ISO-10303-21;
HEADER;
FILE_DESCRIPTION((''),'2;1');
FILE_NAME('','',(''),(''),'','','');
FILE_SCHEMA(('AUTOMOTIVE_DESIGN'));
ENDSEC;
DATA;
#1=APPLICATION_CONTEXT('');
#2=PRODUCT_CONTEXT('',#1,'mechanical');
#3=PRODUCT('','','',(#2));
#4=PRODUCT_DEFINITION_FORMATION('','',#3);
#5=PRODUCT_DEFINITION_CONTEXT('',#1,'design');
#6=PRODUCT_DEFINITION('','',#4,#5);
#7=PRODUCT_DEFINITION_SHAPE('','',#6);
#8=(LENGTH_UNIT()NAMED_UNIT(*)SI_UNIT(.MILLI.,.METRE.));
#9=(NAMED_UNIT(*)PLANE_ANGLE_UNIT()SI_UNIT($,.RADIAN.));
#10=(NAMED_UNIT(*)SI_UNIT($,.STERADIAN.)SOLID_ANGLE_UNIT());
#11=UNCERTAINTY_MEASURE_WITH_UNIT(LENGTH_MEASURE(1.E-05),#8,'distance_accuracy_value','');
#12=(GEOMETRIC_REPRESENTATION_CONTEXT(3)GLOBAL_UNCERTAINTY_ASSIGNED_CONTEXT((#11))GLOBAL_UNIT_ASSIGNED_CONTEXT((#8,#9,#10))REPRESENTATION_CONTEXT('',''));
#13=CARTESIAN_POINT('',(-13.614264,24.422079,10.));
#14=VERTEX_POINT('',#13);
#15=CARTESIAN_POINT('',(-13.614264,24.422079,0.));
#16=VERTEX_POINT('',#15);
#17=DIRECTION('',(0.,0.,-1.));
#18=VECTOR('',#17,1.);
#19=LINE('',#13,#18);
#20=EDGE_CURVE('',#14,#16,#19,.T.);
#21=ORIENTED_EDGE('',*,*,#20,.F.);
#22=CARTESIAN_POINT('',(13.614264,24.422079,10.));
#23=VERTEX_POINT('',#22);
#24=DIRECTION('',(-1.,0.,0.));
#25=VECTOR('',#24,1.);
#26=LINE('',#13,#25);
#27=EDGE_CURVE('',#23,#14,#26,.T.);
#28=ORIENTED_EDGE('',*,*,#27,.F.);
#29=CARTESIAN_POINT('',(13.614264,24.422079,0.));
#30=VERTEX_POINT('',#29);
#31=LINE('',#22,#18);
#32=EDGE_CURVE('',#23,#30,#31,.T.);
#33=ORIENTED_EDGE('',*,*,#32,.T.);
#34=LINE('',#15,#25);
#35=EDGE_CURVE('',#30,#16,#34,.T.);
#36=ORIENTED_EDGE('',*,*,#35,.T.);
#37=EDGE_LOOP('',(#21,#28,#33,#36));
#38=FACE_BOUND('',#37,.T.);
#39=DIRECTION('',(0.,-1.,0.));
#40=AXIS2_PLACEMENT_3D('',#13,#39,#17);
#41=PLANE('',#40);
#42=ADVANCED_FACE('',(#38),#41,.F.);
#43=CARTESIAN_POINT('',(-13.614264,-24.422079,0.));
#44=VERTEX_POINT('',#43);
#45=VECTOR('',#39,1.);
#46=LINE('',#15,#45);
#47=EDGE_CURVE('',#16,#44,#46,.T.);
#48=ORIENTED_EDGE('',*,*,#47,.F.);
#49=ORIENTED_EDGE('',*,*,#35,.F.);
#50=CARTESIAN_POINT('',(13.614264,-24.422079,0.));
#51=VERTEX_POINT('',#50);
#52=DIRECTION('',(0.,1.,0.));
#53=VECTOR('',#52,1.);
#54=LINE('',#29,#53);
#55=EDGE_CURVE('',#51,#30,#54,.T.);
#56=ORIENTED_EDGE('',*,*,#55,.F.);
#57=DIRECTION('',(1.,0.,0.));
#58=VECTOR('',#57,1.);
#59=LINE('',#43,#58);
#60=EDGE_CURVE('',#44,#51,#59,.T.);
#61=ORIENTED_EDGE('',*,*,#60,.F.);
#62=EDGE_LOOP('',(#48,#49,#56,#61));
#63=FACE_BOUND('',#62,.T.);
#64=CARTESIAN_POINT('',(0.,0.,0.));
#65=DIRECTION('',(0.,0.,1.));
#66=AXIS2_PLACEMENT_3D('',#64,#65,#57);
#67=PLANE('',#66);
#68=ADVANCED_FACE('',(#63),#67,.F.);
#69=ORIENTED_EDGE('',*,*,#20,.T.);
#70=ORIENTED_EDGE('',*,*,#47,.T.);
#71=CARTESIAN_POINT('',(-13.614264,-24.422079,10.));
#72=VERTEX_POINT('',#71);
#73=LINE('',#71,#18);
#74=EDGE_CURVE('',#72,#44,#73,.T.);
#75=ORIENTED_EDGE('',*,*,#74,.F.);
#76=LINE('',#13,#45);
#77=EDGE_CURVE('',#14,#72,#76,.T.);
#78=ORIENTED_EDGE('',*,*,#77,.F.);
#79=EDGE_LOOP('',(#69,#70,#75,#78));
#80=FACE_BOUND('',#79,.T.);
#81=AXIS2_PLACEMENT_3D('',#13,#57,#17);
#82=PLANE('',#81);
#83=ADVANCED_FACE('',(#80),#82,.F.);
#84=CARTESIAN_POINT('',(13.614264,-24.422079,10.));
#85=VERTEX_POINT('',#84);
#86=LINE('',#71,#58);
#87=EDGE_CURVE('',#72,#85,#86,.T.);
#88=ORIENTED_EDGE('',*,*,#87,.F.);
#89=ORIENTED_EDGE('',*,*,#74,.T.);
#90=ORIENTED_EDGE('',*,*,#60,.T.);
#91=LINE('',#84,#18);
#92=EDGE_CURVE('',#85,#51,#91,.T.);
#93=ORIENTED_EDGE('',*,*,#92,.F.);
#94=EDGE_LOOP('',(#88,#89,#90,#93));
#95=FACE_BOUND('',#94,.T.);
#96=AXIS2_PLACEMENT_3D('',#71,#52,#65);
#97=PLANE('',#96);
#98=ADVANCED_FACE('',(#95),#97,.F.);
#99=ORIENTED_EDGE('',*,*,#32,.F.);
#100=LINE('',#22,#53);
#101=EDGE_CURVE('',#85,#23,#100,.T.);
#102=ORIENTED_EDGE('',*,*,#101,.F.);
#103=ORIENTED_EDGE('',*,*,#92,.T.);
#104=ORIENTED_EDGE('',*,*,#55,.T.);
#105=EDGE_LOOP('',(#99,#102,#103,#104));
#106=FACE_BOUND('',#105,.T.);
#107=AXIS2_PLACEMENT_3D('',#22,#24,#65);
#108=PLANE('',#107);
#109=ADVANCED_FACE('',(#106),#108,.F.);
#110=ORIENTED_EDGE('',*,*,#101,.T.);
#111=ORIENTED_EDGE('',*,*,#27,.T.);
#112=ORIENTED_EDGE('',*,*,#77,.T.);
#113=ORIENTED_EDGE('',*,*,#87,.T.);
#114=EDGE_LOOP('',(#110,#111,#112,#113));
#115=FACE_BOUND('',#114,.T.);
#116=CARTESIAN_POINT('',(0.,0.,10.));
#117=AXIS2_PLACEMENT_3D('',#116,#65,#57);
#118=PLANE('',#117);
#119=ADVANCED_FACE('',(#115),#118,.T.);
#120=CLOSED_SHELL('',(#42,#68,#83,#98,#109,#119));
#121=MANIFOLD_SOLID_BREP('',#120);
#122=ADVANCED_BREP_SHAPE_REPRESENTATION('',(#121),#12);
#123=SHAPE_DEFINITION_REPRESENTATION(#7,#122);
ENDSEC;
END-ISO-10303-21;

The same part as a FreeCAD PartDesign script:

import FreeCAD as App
import Part
import Sketcher

doc = App.newDocument("Part")
body = doc.addObject("PartDesign::Body", "Body")

sketch1 = body.newObject("Sketcher::SketchObject", "Sketch")
sketch1.AttachmentSupport = (doc.getObject("XY_Plane"), [""])
sketch1.MapMode = "FlatFace"
sketch1.addGeometry([
    Part.LineSegment(App.Vector(-14, 24, 0), App.Vector(-14, -24, 0)),
    Part.LineSegment(App.Vector(-14, -24, 0), App.Vector(14, -24, 0)),
    Part.LineSegment(App.Vector(14, -24, 0), App.Vector(14, 24, 0)),
    Part.LineSegment(App.Vector(14, 24, 0), App.Vector(-14, 24, 0)),
], False)
sketch1.addConstraint([
    Sketcher.Constraint("Coincident", 0, 2, 1, 1),
    Sketcher.Constraint("Coincident", 1, 2, 2, 1),
    Sketcher.Constraint("Coincident", 2, 2, 3, 1),
    Sketcher.Constraint("Coincident", 3, 2, 0, 1),
    Sketcher.Constraint("Vertical", 0),
    Sketcher.Constraint("Horizontal", 1),
    Sketcher.Constraint("Vertical", 2),
    Sketcher.Constraint("Horizontal", 3),
    Sketcher.Constraint("Symmetric", 0, 2, 2, 2, -1, 1),
    Sketcher.Constraint("DistanceY", 0, 2, 0, 1, 48.844158),
    Sketcher.Constraint("DistanceX", 1, 1, 1, 2, 27.228527),
])
pad1 = body.newObject("PartDesign::Pad", "Pad")
pad1.Profile = sketch1
pad1.Length = 10

doc.recompute()
